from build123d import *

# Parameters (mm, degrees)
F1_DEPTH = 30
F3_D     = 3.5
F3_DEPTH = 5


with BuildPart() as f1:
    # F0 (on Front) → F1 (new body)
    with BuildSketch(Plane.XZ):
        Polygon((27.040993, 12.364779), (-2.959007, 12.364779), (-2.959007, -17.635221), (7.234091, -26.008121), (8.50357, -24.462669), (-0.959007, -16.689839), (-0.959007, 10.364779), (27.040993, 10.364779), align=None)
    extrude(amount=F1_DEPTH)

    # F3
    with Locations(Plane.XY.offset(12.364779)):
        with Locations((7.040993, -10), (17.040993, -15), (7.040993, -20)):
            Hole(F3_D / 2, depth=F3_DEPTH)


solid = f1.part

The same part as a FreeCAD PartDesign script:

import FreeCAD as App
import Part
import Sketcher
Q = App.Units.Quantity


def add_polygon(sketch, points):
    """Adds a closed chain of lines whose ends are joined by coincident constraints."""
    first, n = sketch.GeometryCount, len(points)
    for a, b in zip(points, points[1:] + points[:1]):
        sketch.addGeometry(Part.LineSegment(App.Vector(*a, 0), App.Vector(*b, 0)), False)
    for i in range(n):
        sketch.addConstraint(Sketcher.Constraint("Coincident", first + i, 2, first + (i + 1) % n, 1))

doc = App.newDocument("Part")
params = doc.addObject("Spreadsheet::Sheet", "Params")
for row, (alias, value) in enumerate([
    ("sketch1_width", "30 mm"),
    ("sketch1_width2", "28 mm"),
    ("sketch1_height", "2 mm"),
    ("sketch1_length", "2 mm"),
    ("pad1_length", "30 mm"),
    ("sketch2_diameter", "3.5 mm"),
    ("hole_diameter", "3.5 mm"),
    ("hole_depth", "5 mm"),
], start=1):
    params.set(f"A{row}", alias)
    params.set(f"B{row}", "=" + value)
    params.setAlias(f"B{row}", alias)

body = doc.addObject("PartDesign::Body", "Body")

sketch1 = doc.addObject("Sketcher::SketchObject", "Sketch")
body.addObject(sketch1)
sketch1.AttachmentSupport = (doc.XZ_Plane, [""])
sketch1.MapMode = "FlatFace"
add_polygon(sketch1, [(27, 12.4), (-3, 12.4), (-3, -17.6), (7.2, -26), (8.5, -24.5), (-1, -16.7), (-1, 10.4), (27, 10.4)])
sketch1.addConstraint(Sketcher.Constraint("Horizontal", 0))
sketch1.addConstraint(Sketcher.Constraint("Vertical", 1))
sketch1.addConstraint(Sketcher.Constraint("Vertical", 5))
sketch1.addConstraint(Sketcher.Constraint("Horizontal", 6))
sketch1.addConstraint(Sketcher.Constraint("Vertical", 7))
sketch1.addConstraint(Sketcher.Constraint("Perpendicular", 2, 3))
sketch1.addConstraint(Sketcher.Constraint("Perpendicular", 3, 4))
sketch1.addConstraint(Sketcher.Constraint("Equal", 0, 1))
sketch1.addConstraint(Sketcher.Constraint("DistanceX", 0, 2, 0, 1, Q("30 mm")))
sketch1.addConstraint(Sketcher.Constraint("DistanceX", 6, 1, 6, 2, Q("28 mm")))
sketch1.addConstraint(Sketcher.Constraint("DistanceY", 7, 1, 7, 2, Q("2 mm")))
sketch1.addConstraint(Sketcher.Constraint("Distance", 3, Q("2 mm")))
sketch1.addConstraint(Sketcher.Constraint("DistanceX", 1, 2, 2, 2, Q("10.193098 mm")))
sketch1.addConstraint(Sketcher.Constraint("DistanceY", 2, 2, 1, 2, Q("8.3729 mm")))
sketch1.addConstraint(Sketcher.Constraint("DistanceY", -1, 1, 0, 2, Q("12.364779 mm")))
sketch1.addConstraint(Sketcher.Constraint("DistanceX", -1, 1, 2, 2, Q("7.234091 mm")))
sketch1.setExpression("Constraints[16]", "Params.sketch1_width")
sketch1.setExpression("Constraints[17]", "Params.sketch1_width2")
sketch1.setExpression("Constraints[18]", "Params.sketch1_height")
sketch1.setExpression("Constraints[19]", "Params.sketch1_length")
pad1 = doc.addObject("PartDesign::Pad", "Pad")
body.addObject(pad1)
pad1.Profile = sketch1
pad1.setExpression("Length", "Params.pad1_length")

sketch2 = doc.addObject("Sketcher::SketchObject", "Sketch001")
body.addObject(sketch2)
sketch2.AttachmentSupport = (doc.XY_Plane, [""])
sketch2.MapMode = "FlatFace"
sketch2.AttachmentOffset = App.Placement(App.Vector(0, 0, 12.364779), App.Rotation())
sketch2.addGeometry(Part.Circle(App.Vector(7, -10, 0), App.Vector(0, 0, 1), 1.8), False)
sketch2.addGeometry(Part.Circle(App.Vector(17, -15, 0), App.Vector(0, 0, 1), 1.8), False)
sketch2.addGeometry(Part.Circle(App.Vector(7, -20, 0), App.Vector(0, 0, 1), 1.8), False)
sketch2.addConstraint(Sketcher.Constraint("Equal", 0, 1))
sketch2.addConstraint(Sketcher.Constraint("Equal", 1, 2))
sketch2.addConstraint(Sketcher.Constraint("Vertical", 0, 3, 2, 3))
sketch2.addConstraint(Sketcher.Constraint("Diameter", 0, Q("3.5 mm")))
sketch2.addConstraint(Sketcher.Constraint("DistanceY", 0, 3, -1, 1, Q("10 mm")))
sketch2.addConstraint(Sketcher.Constraint("DistanceY", 1, 3, -1, 1, Q("15 mm")))
sketch2.addConstraint(Sketcher.Constraint("DistanceY", 2, 3, -1, 1, Q("20 mm")))
sketch2.addConstraint(Sketcher.Constraint("DistanceX", 0, 3, 1, 3, Q("10 mm")))
sketch2.addConstraint(Sketcher.Constraint("DistanceX", -1, 1, 0, 3, Q("7.040993 mm")))
sketch2.setExpression("Constraints[3]", "Params.sketch2_diameter")
doc.recompute()
hole = doc.addObject("PartDesign::Hole", "Hole")
body.addObject(hole)
hole.Profile = sketch2
hole.ThreadType = "None"
hole.setExpression("Diameter", "Params.hole_diameter")
hole.DepthType = "Dimension"
hole.setExpression("Depth", "Params.hole_depth")
hole.DrillPoint = "Flat"

doc.recompute()
